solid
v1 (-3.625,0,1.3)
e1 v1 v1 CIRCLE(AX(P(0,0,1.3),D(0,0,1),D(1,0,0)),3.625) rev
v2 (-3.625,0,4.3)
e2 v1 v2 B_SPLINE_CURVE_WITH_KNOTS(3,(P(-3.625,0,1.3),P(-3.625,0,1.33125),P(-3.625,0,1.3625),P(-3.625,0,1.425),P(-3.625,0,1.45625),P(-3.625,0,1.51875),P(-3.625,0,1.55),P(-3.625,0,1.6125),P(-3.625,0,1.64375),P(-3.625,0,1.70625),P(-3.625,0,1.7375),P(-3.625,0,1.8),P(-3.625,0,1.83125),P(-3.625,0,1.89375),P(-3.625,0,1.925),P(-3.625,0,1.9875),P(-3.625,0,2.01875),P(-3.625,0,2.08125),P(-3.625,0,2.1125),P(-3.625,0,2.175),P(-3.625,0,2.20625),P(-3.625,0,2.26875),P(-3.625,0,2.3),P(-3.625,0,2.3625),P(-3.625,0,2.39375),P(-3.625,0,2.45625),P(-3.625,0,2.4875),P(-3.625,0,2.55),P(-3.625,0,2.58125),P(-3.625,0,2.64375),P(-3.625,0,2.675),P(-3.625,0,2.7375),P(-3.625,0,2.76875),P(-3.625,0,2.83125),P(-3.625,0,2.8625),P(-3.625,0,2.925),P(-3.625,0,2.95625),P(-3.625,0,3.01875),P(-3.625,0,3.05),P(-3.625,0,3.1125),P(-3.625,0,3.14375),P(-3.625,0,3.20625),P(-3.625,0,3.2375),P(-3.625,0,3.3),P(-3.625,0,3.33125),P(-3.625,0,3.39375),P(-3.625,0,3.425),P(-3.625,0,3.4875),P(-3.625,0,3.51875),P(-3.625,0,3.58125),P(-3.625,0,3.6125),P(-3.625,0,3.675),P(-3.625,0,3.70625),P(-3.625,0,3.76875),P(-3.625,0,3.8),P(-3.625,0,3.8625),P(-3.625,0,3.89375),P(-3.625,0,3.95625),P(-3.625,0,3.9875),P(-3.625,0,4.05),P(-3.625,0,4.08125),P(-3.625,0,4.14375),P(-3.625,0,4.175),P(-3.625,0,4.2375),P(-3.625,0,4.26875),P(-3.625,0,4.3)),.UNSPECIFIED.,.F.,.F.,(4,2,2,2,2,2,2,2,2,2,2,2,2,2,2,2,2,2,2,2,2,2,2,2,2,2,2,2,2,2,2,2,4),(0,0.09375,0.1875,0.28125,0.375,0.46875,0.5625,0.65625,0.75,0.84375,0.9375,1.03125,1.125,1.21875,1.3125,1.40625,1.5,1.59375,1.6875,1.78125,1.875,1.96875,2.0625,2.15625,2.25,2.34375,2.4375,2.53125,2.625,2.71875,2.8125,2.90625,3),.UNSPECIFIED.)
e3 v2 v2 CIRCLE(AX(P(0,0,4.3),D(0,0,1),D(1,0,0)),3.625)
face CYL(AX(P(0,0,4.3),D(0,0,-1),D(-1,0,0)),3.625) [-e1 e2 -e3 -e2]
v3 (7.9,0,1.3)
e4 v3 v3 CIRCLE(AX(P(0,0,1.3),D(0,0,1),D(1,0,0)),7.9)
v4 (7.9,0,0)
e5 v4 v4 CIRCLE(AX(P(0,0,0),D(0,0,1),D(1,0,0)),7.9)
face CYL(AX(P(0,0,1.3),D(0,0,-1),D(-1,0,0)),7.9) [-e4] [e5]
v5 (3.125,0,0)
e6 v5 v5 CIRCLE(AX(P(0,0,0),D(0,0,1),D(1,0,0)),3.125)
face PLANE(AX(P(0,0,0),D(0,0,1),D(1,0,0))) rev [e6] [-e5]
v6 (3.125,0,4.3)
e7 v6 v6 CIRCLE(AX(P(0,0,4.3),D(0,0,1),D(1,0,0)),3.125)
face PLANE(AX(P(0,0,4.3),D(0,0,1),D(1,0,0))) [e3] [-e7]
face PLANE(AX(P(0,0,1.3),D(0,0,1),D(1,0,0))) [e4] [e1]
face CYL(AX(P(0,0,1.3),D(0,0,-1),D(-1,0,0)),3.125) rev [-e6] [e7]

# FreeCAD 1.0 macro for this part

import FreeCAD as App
import Part
import Sketcher
from FreeCAD import Vector
Q = App.Units.Quantity

doc = App.newDocument("Part")
body = doc.addObject("PartDesign::Body", "Body")

sketch1 = body.newObject("Sketcher::SketchObject", "Sketch")
sketch1.AttachmentSupport = (doc.getObject("XY_Plane"), [""])
sketch1.MapMode = "FlatFace"
sketch1.addGeometry(Part.Circle(Vector(0, 0, 0), Vector(0, 0, 1), 7.9), False)
sketch1.addGeometry(Part.Circle(Vector(0, 0, 0), Vector(0, 0, 1), 3.125), False)
sketch1.addConstraint(Sketcher.Constraint("Coincident", 0, 3, -1, 1))
sketch1.addConstraint(Sketcher.Constraint("Coincident", 1, 3, -1, 1))
sketch1.addConstraint(Sketcher.Constraint("Diameter", 0, Q("15.8 mm")))
sketch1.addConstraint(Sketcher.Constraint("Diameter", 1, Q("6.25 mm")))
pad1 = body.newObject("PartDesign::Pad", "Pad")
pad1.Profile = sketch1
pad1.Length = 1.3

sketch2 = body.newObject("Sketcher::SketchObject", "Sketch001")
sketch2.AttachmentSupport = (doc.getObject("XY_Plane"), [""])
sketch2.MapMode = "FlatFace"
sketch2.addGeometry(Part.Circle(Vector(0, 0, 0), Vector(0, 0, 1), 3.625), False)
sketch2.addGeometry(Part.Circle(Vector(0, 0, 0), Vector(0, 0, 1), 3.125), False)
sketch2.addConstraint(Sketcher.Constraint("Coincident", 0, 3, -1, 1))
sketch2.addConstraint(Sketcher.Constraint("Coincident", 1, 3, -1, 1))
sketch2.addConstraint(Sketcher.Constraint("Diameter", 0, Q("7.25 mm")))
sketch2.addConstraint(Sketcher.Constraint("Diameter", 1, Q("6.25 mm")))
pad2 = body.newObject("PartDesign::Pad", "Pad001")
pad2.Profile = sketch2
pad2.Length = 4.3

doc.recompute()
